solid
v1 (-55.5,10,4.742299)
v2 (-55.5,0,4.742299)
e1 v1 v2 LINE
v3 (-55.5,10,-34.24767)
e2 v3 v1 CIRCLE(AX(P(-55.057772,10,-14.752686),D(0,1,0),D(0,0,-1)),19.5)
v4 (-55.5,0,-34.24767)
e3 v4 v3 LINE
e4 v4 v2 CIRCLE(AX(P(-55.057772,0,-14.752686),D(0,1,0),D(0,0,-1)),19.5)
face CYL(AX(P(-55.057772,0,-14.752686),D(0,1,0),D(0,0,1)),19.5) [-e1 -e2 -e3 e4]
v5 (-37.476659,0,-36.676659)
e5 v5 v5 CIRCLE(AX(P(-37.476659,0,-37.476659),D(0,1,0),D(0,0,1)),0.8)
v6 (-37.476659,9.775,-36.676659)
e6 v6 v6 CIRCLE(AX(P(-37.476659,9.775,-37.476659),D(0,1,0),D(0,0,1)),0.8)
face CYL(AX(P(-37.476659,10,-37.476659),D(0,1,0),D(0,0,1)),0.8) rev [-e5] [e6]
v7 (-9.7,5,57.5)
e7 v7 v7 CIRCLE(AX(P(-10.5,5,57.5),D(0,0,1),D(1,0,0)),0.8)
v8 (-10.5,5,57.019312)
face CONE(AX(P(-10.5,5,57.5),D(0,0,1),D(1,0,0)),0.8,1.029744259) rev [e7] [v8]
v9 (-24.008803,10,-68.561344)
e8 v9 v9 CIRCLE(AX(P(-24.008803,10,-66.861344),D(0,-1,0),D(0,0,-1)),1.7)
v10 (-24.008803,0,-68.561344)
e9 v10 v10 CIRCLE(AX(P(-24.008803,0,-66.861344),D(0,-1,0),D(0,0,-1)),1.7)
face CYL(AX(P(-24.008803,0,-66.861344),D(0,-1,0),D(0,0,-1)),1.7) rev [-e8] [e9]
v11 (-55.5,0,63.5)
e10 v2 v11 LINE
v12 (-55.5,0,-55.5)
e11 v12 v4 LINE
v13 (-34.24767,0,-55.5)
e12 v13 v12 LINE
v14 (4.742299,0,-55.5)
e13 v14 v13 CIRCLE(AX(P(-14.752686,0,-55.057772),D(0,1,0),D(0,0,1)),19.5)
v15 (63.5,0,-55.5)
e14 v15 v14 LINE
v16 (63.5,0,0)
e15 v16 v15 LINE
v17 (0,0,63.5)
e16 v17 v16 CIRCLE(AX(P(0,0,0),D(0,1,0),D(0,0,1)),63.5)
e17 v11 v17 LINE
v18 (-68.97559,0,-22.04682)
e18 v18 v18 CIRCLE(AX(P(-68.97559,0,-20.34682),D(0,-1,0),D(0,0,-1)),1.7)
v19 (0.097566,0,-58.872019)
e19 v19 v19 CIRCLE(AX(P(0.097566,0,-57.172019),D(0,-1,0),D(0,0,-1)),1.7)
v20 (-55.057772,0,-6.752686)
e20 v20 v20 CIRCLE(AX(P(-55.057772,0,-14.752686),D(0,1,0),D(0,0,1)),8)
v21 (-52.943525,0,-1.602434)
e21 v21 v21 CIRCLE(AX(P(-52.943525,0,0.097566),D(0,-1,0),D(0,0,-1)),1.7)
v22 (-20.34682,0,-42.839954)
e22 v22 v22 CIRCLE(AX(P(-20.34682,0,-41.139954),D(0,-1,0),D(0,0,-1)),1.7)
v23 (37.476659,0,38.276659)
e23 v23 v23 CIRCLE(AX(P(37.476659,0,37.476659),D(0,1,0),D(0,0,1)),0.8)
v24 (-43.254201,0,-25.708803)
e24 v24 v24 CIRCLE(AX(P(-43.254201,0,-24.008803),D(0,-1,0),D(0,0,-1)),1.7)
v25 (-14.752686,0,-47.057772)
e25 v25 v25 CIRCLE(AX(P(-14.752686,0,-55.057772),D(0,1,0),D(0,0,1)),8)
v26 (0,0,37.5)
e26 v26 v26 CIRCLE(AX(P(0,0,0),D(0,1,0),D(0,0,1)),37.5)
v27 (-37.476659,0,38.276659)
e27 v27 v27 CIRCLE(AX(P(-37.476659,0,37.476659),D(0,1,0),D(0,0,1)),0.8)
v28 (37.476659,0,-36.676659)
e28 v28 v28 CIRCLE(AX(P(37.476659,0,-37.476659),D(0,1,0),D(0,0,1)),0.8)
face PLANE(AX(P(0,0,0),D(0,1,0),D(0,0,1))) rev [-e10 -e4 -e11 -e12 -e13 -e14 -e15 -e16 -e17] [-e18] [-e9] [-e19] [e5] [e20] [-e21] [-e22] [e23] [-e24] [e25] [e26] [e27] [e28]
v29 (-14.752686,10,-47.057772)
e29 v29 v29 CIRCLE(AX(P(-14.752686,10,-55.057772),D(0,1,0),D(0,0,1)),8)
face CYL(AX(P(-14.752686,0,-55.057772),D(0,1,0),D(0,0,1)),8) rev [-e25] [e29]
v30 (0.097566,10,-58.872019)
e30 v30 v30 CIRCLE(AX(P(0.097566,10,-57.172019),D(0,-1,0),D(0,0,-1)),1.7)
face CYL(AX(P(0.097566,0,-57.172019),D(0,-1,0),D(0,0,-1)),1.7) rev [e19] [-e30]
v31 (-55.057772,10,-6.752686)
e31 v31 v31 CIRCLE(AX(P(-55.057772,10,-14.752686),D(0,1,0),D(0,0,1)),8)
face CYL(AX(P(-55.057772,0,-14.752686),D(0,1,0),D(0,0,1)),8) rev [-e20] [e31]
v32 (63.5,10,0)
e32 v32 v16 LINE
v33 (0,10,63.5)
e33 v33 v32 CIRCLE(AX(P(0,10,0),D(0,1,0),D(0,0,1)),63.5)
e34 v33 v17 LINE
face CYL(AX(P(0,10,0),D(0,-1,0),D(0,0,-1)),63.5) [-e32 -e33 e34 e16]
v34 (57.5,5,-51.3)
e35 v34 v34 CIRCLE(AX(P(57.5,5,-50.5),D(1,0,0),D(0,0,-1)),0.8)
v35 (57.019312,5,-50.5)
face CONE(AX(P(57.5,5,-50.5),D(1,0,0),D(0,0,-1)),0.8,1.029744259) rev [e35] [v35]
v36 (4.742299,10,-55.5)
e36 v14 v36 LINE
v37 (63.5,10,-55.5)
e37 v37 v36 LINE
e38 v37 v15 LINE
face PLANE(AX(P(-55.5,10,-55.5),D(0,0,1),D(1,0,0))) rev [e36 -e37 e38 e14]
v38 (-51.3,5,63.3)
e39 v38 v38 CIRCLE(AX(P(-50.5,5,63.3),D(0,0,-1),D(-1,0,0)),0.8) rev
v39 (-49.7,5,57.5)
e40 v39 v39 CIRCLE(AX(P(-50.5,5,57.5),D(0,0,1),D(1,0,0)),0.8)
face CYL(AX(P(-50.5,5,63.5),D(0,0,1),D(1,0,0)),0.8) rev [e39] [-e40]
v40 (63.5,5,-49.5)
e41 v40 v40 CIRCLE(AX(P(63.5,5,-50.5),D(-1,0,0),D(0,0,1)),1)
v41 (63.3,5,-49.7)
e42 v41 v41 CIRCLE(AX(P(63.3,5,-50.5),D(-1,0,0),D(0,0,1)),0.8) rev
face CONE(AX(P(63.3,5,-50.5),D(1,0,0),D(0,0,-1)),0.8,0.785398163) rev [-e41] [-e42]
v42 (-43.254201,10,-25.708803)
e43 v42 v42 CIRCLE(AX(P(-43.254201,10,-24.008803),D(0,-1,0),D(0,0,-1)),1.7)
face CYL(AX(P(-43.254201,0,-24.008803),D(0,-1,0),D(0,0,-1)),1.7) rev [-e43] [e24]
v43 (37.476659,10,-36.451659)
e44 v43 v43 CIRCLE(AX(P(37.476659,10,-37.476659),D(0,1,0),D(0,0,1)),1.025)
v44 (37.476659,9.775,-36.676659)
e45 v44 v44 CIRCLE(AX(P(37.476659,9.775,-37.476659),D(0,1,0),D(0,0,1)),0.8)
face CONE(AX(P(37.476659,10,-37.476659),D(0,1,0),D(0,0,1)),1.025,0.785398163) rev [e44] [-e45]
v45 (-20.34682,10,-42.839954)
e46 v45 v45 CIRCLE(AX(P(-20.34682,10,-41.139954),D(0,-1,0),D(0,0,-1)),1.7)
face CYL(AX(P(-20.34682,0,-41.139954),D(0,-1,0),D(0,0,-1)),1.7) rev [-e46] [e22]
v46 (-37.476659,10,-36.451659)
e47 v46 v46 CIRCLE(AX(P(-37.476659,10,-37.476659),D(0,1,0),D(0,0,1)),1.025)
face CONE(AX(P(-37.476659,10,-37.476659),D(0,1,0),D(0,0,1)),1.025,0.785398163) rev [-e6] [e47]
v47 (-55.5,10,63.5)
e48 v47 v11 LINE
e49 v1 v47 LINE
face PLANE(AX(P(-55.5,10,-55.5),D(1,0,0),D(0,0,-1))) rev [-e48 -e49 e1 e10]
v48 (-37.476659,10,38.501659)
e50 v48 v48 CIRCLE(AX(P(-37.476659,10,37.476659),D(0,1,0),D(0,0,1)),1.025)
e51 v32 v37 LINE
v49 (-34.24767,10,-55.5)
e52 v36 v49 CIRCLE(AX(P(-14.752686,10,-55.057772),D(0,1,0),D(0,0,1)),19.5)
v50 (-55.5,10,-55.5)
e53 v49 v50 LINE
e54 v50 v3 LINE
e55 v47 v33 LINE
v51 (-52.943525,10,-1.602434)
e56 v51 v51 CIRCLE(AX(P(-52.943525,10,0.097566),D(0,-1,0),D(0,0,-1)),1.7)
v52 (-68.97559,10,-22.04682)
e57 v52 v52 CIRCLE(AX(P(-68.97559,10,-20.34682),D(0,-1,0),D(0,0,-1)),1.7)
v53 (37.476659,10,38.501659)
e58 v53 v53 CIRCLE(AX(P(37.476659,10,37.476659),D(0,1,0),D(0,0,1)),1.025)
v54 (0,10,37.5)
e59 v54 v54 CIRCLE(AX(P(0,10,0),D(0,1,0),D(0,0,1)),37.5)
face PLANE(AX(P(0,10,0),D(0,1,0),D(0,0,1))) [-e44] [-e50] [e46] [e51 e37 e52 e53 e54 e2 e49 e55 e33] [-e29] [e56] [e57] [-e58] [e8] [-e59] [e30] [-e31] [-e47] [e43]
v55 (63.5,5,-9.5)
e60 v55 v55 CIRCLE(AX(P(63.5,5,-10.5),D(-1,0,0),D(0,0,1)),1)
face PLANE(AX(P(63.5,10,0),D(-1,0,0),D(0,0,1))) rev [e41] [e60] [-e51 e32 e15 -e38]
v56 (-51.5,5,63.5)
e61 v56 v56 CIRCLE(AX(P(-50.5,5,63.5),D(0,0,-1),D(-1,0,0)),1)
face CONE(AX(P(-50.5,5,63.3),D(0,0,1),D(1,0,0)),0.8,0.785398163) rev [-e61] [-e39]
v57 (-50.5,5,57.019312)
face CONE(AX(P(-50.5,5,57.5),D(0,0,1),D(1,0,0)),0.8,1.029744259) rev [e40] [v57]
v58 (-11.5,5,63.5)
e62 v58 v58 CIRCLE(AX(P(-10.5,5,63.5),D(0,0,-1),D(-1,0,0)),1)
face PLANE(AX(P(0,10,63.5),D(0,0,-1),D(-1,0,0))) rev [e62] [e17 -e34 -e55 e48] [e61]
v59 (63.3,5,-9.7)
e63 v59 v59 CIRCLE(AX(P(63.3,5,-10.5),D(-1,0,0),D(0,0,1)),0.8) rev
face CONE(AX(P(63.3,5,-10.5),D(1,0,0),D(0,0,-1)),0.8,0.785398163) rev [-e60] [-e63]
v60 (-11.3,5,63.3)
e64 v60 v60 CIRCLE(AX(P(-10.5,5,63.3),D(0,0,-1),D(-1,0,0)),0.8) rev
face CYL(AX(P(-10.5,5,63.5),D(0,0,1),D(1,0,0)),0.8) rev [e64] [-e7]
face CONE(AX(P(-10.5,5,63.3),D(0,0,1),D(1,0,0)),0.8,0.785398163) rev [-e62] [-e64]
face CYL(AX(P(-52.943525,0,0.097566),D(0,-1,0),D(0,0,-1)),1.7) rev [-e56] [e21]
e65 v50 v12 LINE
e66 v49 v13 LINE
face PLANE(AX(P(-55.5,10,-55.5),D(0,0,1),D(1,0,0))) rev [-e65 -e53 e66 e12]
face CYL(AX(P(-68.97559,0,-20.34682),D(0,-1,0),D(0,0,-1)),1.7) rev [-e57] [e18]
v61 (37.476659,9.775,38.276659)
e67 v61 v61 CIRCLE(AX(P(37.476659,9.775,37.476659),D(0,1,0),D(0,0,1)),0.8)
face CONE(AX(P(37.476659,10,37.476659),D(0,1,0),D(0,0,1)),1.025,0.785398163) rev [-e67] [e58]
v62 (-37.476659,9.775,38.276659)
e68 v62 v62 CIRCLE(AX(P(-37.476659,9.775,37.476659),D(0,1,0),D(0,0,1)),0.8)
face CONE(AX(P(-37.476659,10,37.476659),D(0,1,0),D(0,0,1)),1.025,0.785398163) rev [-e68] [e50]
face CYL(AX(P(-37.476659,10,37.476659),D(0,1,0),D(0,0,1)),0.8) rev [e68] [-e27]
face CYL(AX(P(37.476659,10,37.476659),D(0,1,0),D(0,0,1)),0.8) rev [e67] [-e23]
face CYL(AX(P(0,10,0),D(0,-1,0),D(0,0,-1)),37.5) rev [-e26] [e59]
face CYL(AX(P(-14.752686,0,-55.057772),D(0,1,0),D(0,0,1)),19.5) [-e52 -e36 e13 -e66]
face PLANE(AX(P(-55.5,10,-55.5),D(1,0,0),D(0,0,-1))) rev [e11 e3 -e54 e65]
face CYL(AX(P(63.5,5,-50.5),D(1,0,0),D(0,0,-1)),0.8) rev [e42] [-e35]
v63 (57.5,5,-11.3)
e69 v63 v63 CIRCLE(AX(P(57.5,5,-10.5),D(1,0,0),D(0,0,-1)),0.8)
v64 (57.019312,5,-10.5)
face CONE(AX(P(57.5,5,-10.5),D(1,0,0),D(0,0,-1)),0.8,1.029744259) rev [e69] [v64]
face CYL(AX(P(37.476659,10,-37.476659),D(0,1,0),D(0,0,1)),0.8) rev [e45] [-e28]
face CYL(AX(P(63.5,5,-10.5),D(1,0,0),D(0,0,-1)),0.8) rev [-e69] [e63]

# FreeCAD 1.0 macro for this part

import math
import FreeCAD as App
import Part
import Sketcher
Q = App.Units.Quantity


def edges_at(feature, points):
    """Names of the edges that pass closest to the given points."""
    edges = feature.Shape.Edges
    near = lambda p: min(range(len(edges)), key=lambda i: edges[i].distToShape(Part.Vertex(*p))[0])
    return sorted({f"Edge{near(p) + 1}" for p in points})

doc = App.newDocument("Part")
body = doc.addObject("PartDesign::Body", "Body")

sketch1 = body.newObject("Sketcher::SketchObject", "Sketch")
sketch1.AttachmentSupport = (doc.getObject("XZ_Plane"), [""])
sketch1.MapMode = "FlatFace"
sketch1.addGeometry(Part.LineSegment(App.Vector(63.5, -55.5, 0), App.Vector(-55.5, -55.5, 0)), False)
sketch1.addGeometry(Part.LineSegment(App.Vector(-55.5, -55.5, 0), App.Vector(-55.5, 63.5, 0)), False)
sketch1.addGeometry(Part.LineSegment(App.Vector(-55.5, 63.5, 0), App.Vector(0, 63.5, 0)), False)
sketch1.addGeometry(Part.ArcOfCircle(Part.Circle(App.Vector(0, 0, 0), App.Vector(0, 0, 1), 63.5), math.radians(0), math.radians(90)), False)
sketch1.addGeometry(Part.LineSegment(App.Vector(63.5, 0, 0), App.Vector(63.5, -55.5, 0)), False)
sketch1.addGeometry(Part.Circle(App.Vector(0, 0, 0), App.Vector(0, 0, 1), 37.5), False)
sketch1.addConstraint(Sketcher.Constraint("Coincident", 0, 2, 1, 1))
sketch1.addConstraint(Sketcher.Constraint("Coincident", 1, 2, 2, 1))
sketch1.addConstraint(Sketcher.Constraint("Tangent", 2, 2, 3, 2))
sketch1.addConstraint(Sketcher.Constraint("Tangent", 3, 1, 4, 1))
sketch1.addConstraint(Sketcher.Constraint("Coincident", 4, 2, 0, 1))
sketch1.addConstraint(Sketcher.Constraint("Horizontal", 0))
sketch1.addConstraint(Sketcher.Constraint("Vertical", 1))
sketch1.addConstraint(Sketcher.Constraint("Horizontal", 2))
sketch1.addConstraint(Sketcher.Constraint("Vertical", 4))
sketch1.addConstraint(Sketcher.Constraint("Coincident", 3, 3, -1, 1))
sketch1.addConstraint(Sketcher.Constraint("Coincident", 5, 3, -1, 1))
sketch1.addConstraint(Sketcher.Constraint("Equal", 0, 1))
sketch1.addConstraint(Sketcher.Constraint("Diameter", 5, Q("75 mm")))
sketch1.addConstraint(Sketcher.Constraint("Radius", 3, Q("63.5 mm")))
sketch1.addConstraint(Sketcher.Constraint("DistanceX", 0, 2, 0, 1, Q("119 mm")))
pad1 = body.newObject("PartDesign::Pad", "Pad")
pad1.Profile = sketch1
pad1.Length = 10
pad1.Reversed = True

sketch2 = body.newObject("Sketcher::SketchObject", "Sketch001")
sketch2.AttachmentSupport = (doc.getObject("XZ_Plane"), [""])
sketch2.MapMode = "FlatFace"
sketch2.AttachmentOffset = App.Placement(App.Vector(0, 0, -10), App.Rotation())
sketch2.addGeometry(Part.Circle(App.Vector(37.476659, -37.476659, 0), App.Vector(0, 0, 1), 0.8), False)
sketch2.addGeometry(Part.Circle(App.Vector(-37.476659, -37.476659, 0), App.Vector(0, 0, 1), 0.8), False)
sketch2.addGeometry(Part.Circle(App.Vector(-37.476659, 37.476659, 0), App.Vector(0, 0, 1), 0.8), False)
sketch2.addGeometry(Part.Circle(App.Vector(37.476659, 37.476659, 0), App.Vector(0, 0, 1), 0.8), False)
sketch2.addConstraint(Sketcher.Constraint("Equal", 0, 1))
sketch2.addConstraint(Sketcher.Constraint("Equal", 1, 2))
sketch2.addConstraint(Sketcher.Constraint("Equal", 2, 3))
sketch2.addConstraint(Sketcher.Constraint("Symmetric", 0, 3, 2, 3, -1, 1))
sketch2.addConstraint(Sketcher.Constraint("Symmetric", 1, 3, 3, 3, -1, 1))
sketch2.addConstraint(Sketcher.Constraint("Symmetric", 0, 3, 1, 3, -2))
sketch2.addConstraint(Sketcher.Constraint("Diameter", 0, Q("1.6 mm")))
sketch2.addConstraint(Sketcher.Constraint("DistanceX", -1, 1, 0, 3, Q("37.476659 mm")))
sketch2.addConstraint(Sketcher.Constraint("DistanceY", 0, 3, -1, 1, Q("37.476659 mm")))
doc.recompute()
hole = body.newObject("PartDesign::Hole", "Hole")
hole.Profile = sketch2
hole.ThreadType = "None"
hole.Diameter = 1.6
hole.DepthType = "ThroughAll"
hole.HoleCutType = "Countersink"
hole.HoleCutDiameter = 2.05
hole.HoleCutCountersinkAngle = 90
hole.Reversed = True

sketch3 = body.newObject("Sketcher::SketchObject", "Sketch002")
sketch3.AttachmentSupport = (doc.getObject("YZ_Plane"), [""])
sketch3.MapMode = "FlatFace"
sketch3.AttachmentOffset = App.Placement(App.Vector(0, 0, 63.5), App.Rotation())
sketch3.addGeometry(Part.Circle(App.Vector(5, -50.5, 0), App.Vector(0, 0, 1), 0.8), False)
sketch3.addGeometry(Part.Circle(App.Vector(5, -10.5, 0), App.Vector(0, 0, 1), 0.8), False)
sketch3.addConstraint(Sketcher.Constraint("Equal", 0, 1))
sketch3.addConstraint(Sketcher.Constraint("Vertical", 0, 3, 1, 3))
sketch3.addConstraint(Sketcher.Constraint("Diameter", 0, Q("1.6 mm")))
sketch3.addConstraint(Sketcher.Constraint("DistanceX", -1, 1, 0, 3, Q("5 mm")))
sketch3.addConstraint(Sketcher.Constraint("DistanceY", 0, 3, 1, 3, Q("40 mm")))
sketch3.addConstraint(Sketcher.Constraint("DistanceY", 0, 3, -1, 1, Q("50.5 mm")))
doc.recompute()
hole2 = body.newObject("PartDesign::Hole", "Hole001")
hole2.Profile = sketch3
hole2.ThreadType = "None"
hole2.Diameter = 1.6
hole2.DepthType = "Dimension"
hole2.Depth = 6
hole2.DrillPoint = "Angled"
hole2.DrillPointAngle = 118

sketch4 = body.newObject("Sketcher::SketchObject", "Sketch003")
sketch4.AttachmentSupport = (doc.getObject("XY_Plane"), [""])
sketch4.MapMode = "FlatFace"
sketch4.AttachmentOffset = App.Placement(App.Vector(0, 0, 63.5), App.Rotation())
sketch4.addGeometry(Part.Circle(App.Vector(-50.5, 5, 0), App.Vector(0, 0, 1), 0.8), False)
sketch4.addGeometry(Part.Circle(App.Vector(-10.5, 5, 0), App.Vector(0, 0, 1), 0.8), False)
sketch4.addConstraint(Sketcher.Constraint("Equal", 0, 1))
sketch4.addConstraint(Sketcher.Constraint("Horizontal", 0, 3, 1, 3))
sketch4.addConstraint(Sketcher.Constraint("Diameter", 0, Q("1.6 mm")))
sketch4.addConstraint(Sketcher.Constraint("DistanceY", -1, 1, 0, 3, Q("5 mm")))
sketch4.addConstraint(Sketcher.Constraint("DistanceX", 0, 3, 1, 3, Q("40 mm")))
sketch4.addConstraint(Sketcher.Constraint("DistanceX", 0, 3, -1, 1, Q("50.5 mm")))
doc.recompute()
hole3 = body.newObject("PartDesign::Hole", "Hole002")
hole3.Profile = sketch4
hole3.ThreadType = "None"
hole3.Diameter = 1.6
hole3.DepthType = "Dimension"
hole3.Depth = 6
hole3.DrillPoint = "Angled"
hole3.DrillPointAngle = 118
doc.recompute()

chamfer = body.newObject("PartDesign::Chamfer", "Chamfer")
chamfer.Base = (hole3, edges_at(hole3, [
    (-9.7, 5, 63.5),
    (-49.7, 5, 63.5),
    (63.5, 5, -9.7),
    (63.5, 5, -49.7),
]))
chamfer.Size = 0.2

sketch5 = body.newObject("Sketcher::SketchObject", "Sketch004")
sketch5.AttachmentSupport = (doc.getObject("XZ_Plane"), [""])
sketch5.MapMode = "FlatFace"
sketch5.AttachmentOffset = App.Placement(App.Vector(0, 0, -10), App.Rotation())
sketch5.addGeometry(Part.Circle(App.Vector(-14.752686, -55.057772, 0), App.Vector(0, 0, 1), 19.5), False)
sketch5.addGeometry(Part.Circle(App.Vector(-55.057772, -14.752686, 0), App.Vector(0, 0, 1), 19.5), False)
sketch5.addConstraint(Sketcher.Constraint("Equal", 0, 1))
sketch5.addConstraint(Sketcher.Constraint("Diameter", 0, Q("39 mm")))
sketch5.addConstraint(Sketcher.Constraint("DistanceX", 0, 3, -1, 1, Q("14.752686 mm")))
sketch5.addConstraint(Sketcher.Constraint("DistanceY", 0, 3, -1, 1, Q("55.057772 mm")))
sketch5.addConstraint(Sketcher.Constraint("DistanceX", 1, 3, -1, 1, Q("55.057772 mm")))
sketch5.addConstraint(Sketcher.Constraint("DistanceY", 1, 3, -1, 1, Q("14.752686 mm")))
pad2 = body.newObject("PartDesign::Pad", "Pad001")
pad2.Profile = sketch5
pad2.Type = "UpToLast"

sketch6 = body.newObject("Sketcher::SketchObject", "Sketch005")
sketch6.AttachmentSupport = (doc.getObject("XZ_Plane"), [""])
sketch6.MapMode = "FlatFace"
sketch6.AttachmentOffset = App.Placement(App.Vector(0, 0, -10), App.Rotation())
sketch6.addGeometry(Part.Circle(App.Vector(-14.752686, -55.057772, 0), App.Vector(0, 0, 1), 8), False)
sketch6.addGeometry(Part.Circle(App.Vector(-55.057772, -14.752686, 0), App.Vector(0, 0, 1), 8), False)
sketch6.addConstraint(Sketcher.Constraint("Equal", 0, 1))
sketch6.addConstraint(Sketcher.Constraint("Diameter", 0, Q("16 mm")))
sketch6.addConstraint(Sketcher.Constraint("DistanceX", 0, 3, -1, 1, Q("14.752686 mm")))
sketch6.addConstraint(Sketcher.Constraint("DistanceY", 0, 3, -1, 1, Q("55.057772 mm")))
sketch6.addConstraint(Sketcher.Constraint("DistanceX", 1, 3, -1, 1, Q("55.057772 mm")))
sketch6.addConstraint(Sketcher.Constraint("DistanceY", 1, 3, -1, 1, Q("14.752686 mm")))
pocket1 = body.newObject("PartDesign::Pocket", "Pocket")
pocket1.Profile = sketch6
pocket1.Type = "ThroughAll"
pocket1.Reversed = True

sketch7 = body.newObject("Sketcher::SketchObject", "Sketch006")
sketch7.AttachmentSupport = (doc.getObject("XZ_Plane"), [""])
sketch7.MapMode = "FlatFace"
sketch7.addGeometry(Part.Circle(App.Vector(-68.97559, -20.34682, 0), App.Vector(0, 0, 1), 1.7), False)
sketch7.addGeometry(Part.Circle(App.Vector(-52.943525, 0.097566, 0), App.Vector(0, 0, 1), 1.7), False)
sketch7.addGeometry(Part.Circle(App.Vector(-43.254201, -24.008803, 0), App.Vector(0, 0, 1), 1.7), False)
sketch7.addGeometry(Part.Circle(App.Vector(-20.34682, -41.139954, 0), App.Vector(0, 0, 1), 1.7), False)
sketch7.addGeometry(Part.Circle(App.Vector(0.097566, -57.172019, 0), App.Vector(0, 0, 1), 1.7), False)
sketch7.addGeometry(Part.Circle(App.Vector(-24.008803, -66.861343, 0), App.Vector(0, 0, 1), 1.7), False)
sketch7.addConstraint(Sketcher.Constraint("Equal", 0, 1))
sketch7.addConstraint(Sketcher.Constraint("Equal", 1, 2))
sketch7.addConstraint(Sketcher.Constraint("Equal", 2, 3))
sketch7.addConstraint(Sketcher.Constraint("Equal", 3, 4))
sketch7.addConstraint(Sketcher.Constraint("Equal", 4, 5))
sketch7.addConstraint(Sketcher.Constraint("Diameter", 0, Q("3.4 mm")))
sketch7.addConstraint(Sketcher.Constraint("DistanceX", 2, 3, -1, 1, Q("43.254201 mm")))
sketch7.addConstraint(Sketcher.Constraint("DistanceY", 4, 3, 0, 3, Q("36.825199 mm")))
sketch7.addConstraint(Sketcher.Constraint("DistanceX", 2, 3, 5, 3, Q("19.245398 mm")))
sketch7.addConstraint(Sketcher.Constraint("DistanceX", 0, 3, -1, 1, Q("68.97559 mm")))
sketch7.addConstraint(Sketcher.Constraint("DistanceY", 0, 3, -1, 1, Q("20.34682 mm")))
sketch7.addConstraint(Sketcher.Constraint("DistanceX", 3, 3, -1, 1, Q("20.34682 mm")))
sketch7.addConstraint(Sketcher.Constraint("DistanceY", 2, 3, 1, 3, Q("24.106368 mm")))
sketch7.addConstraint(Sketcher.Constraint("DistanceY", 3, 3, 2, 3, Q("17.131151 mm")))
sketch7.addConstraint(Sketcher.Constraint("DistanceX", 1, 3, 4, 3, Q("53.041091 mm")))
sketch7.addConstraint(Sketcher.Constraint("DistanceX", 5, 3, 4, 3, Q("24.106368 mm")))
sketch7.addConstraint(Sketcher.Constraint("DistanceY", 5, 3, 3, 3, Q("25.72139 mm")))
sketch7.addConstraint(Sketcher.Constraint("DistanceY", -1, 1, 1, 3, Q("0.097566 mm")))
doc.recompute()
hole4 = body.newObject("PartDesign::Hole", "Hole003")
hole4.Profile = sketch7
hole4.ThreadType = "None"
hole4.Diameter = 3.4
hole4.DepthType = "ThroughAll"

doc.recompute()
